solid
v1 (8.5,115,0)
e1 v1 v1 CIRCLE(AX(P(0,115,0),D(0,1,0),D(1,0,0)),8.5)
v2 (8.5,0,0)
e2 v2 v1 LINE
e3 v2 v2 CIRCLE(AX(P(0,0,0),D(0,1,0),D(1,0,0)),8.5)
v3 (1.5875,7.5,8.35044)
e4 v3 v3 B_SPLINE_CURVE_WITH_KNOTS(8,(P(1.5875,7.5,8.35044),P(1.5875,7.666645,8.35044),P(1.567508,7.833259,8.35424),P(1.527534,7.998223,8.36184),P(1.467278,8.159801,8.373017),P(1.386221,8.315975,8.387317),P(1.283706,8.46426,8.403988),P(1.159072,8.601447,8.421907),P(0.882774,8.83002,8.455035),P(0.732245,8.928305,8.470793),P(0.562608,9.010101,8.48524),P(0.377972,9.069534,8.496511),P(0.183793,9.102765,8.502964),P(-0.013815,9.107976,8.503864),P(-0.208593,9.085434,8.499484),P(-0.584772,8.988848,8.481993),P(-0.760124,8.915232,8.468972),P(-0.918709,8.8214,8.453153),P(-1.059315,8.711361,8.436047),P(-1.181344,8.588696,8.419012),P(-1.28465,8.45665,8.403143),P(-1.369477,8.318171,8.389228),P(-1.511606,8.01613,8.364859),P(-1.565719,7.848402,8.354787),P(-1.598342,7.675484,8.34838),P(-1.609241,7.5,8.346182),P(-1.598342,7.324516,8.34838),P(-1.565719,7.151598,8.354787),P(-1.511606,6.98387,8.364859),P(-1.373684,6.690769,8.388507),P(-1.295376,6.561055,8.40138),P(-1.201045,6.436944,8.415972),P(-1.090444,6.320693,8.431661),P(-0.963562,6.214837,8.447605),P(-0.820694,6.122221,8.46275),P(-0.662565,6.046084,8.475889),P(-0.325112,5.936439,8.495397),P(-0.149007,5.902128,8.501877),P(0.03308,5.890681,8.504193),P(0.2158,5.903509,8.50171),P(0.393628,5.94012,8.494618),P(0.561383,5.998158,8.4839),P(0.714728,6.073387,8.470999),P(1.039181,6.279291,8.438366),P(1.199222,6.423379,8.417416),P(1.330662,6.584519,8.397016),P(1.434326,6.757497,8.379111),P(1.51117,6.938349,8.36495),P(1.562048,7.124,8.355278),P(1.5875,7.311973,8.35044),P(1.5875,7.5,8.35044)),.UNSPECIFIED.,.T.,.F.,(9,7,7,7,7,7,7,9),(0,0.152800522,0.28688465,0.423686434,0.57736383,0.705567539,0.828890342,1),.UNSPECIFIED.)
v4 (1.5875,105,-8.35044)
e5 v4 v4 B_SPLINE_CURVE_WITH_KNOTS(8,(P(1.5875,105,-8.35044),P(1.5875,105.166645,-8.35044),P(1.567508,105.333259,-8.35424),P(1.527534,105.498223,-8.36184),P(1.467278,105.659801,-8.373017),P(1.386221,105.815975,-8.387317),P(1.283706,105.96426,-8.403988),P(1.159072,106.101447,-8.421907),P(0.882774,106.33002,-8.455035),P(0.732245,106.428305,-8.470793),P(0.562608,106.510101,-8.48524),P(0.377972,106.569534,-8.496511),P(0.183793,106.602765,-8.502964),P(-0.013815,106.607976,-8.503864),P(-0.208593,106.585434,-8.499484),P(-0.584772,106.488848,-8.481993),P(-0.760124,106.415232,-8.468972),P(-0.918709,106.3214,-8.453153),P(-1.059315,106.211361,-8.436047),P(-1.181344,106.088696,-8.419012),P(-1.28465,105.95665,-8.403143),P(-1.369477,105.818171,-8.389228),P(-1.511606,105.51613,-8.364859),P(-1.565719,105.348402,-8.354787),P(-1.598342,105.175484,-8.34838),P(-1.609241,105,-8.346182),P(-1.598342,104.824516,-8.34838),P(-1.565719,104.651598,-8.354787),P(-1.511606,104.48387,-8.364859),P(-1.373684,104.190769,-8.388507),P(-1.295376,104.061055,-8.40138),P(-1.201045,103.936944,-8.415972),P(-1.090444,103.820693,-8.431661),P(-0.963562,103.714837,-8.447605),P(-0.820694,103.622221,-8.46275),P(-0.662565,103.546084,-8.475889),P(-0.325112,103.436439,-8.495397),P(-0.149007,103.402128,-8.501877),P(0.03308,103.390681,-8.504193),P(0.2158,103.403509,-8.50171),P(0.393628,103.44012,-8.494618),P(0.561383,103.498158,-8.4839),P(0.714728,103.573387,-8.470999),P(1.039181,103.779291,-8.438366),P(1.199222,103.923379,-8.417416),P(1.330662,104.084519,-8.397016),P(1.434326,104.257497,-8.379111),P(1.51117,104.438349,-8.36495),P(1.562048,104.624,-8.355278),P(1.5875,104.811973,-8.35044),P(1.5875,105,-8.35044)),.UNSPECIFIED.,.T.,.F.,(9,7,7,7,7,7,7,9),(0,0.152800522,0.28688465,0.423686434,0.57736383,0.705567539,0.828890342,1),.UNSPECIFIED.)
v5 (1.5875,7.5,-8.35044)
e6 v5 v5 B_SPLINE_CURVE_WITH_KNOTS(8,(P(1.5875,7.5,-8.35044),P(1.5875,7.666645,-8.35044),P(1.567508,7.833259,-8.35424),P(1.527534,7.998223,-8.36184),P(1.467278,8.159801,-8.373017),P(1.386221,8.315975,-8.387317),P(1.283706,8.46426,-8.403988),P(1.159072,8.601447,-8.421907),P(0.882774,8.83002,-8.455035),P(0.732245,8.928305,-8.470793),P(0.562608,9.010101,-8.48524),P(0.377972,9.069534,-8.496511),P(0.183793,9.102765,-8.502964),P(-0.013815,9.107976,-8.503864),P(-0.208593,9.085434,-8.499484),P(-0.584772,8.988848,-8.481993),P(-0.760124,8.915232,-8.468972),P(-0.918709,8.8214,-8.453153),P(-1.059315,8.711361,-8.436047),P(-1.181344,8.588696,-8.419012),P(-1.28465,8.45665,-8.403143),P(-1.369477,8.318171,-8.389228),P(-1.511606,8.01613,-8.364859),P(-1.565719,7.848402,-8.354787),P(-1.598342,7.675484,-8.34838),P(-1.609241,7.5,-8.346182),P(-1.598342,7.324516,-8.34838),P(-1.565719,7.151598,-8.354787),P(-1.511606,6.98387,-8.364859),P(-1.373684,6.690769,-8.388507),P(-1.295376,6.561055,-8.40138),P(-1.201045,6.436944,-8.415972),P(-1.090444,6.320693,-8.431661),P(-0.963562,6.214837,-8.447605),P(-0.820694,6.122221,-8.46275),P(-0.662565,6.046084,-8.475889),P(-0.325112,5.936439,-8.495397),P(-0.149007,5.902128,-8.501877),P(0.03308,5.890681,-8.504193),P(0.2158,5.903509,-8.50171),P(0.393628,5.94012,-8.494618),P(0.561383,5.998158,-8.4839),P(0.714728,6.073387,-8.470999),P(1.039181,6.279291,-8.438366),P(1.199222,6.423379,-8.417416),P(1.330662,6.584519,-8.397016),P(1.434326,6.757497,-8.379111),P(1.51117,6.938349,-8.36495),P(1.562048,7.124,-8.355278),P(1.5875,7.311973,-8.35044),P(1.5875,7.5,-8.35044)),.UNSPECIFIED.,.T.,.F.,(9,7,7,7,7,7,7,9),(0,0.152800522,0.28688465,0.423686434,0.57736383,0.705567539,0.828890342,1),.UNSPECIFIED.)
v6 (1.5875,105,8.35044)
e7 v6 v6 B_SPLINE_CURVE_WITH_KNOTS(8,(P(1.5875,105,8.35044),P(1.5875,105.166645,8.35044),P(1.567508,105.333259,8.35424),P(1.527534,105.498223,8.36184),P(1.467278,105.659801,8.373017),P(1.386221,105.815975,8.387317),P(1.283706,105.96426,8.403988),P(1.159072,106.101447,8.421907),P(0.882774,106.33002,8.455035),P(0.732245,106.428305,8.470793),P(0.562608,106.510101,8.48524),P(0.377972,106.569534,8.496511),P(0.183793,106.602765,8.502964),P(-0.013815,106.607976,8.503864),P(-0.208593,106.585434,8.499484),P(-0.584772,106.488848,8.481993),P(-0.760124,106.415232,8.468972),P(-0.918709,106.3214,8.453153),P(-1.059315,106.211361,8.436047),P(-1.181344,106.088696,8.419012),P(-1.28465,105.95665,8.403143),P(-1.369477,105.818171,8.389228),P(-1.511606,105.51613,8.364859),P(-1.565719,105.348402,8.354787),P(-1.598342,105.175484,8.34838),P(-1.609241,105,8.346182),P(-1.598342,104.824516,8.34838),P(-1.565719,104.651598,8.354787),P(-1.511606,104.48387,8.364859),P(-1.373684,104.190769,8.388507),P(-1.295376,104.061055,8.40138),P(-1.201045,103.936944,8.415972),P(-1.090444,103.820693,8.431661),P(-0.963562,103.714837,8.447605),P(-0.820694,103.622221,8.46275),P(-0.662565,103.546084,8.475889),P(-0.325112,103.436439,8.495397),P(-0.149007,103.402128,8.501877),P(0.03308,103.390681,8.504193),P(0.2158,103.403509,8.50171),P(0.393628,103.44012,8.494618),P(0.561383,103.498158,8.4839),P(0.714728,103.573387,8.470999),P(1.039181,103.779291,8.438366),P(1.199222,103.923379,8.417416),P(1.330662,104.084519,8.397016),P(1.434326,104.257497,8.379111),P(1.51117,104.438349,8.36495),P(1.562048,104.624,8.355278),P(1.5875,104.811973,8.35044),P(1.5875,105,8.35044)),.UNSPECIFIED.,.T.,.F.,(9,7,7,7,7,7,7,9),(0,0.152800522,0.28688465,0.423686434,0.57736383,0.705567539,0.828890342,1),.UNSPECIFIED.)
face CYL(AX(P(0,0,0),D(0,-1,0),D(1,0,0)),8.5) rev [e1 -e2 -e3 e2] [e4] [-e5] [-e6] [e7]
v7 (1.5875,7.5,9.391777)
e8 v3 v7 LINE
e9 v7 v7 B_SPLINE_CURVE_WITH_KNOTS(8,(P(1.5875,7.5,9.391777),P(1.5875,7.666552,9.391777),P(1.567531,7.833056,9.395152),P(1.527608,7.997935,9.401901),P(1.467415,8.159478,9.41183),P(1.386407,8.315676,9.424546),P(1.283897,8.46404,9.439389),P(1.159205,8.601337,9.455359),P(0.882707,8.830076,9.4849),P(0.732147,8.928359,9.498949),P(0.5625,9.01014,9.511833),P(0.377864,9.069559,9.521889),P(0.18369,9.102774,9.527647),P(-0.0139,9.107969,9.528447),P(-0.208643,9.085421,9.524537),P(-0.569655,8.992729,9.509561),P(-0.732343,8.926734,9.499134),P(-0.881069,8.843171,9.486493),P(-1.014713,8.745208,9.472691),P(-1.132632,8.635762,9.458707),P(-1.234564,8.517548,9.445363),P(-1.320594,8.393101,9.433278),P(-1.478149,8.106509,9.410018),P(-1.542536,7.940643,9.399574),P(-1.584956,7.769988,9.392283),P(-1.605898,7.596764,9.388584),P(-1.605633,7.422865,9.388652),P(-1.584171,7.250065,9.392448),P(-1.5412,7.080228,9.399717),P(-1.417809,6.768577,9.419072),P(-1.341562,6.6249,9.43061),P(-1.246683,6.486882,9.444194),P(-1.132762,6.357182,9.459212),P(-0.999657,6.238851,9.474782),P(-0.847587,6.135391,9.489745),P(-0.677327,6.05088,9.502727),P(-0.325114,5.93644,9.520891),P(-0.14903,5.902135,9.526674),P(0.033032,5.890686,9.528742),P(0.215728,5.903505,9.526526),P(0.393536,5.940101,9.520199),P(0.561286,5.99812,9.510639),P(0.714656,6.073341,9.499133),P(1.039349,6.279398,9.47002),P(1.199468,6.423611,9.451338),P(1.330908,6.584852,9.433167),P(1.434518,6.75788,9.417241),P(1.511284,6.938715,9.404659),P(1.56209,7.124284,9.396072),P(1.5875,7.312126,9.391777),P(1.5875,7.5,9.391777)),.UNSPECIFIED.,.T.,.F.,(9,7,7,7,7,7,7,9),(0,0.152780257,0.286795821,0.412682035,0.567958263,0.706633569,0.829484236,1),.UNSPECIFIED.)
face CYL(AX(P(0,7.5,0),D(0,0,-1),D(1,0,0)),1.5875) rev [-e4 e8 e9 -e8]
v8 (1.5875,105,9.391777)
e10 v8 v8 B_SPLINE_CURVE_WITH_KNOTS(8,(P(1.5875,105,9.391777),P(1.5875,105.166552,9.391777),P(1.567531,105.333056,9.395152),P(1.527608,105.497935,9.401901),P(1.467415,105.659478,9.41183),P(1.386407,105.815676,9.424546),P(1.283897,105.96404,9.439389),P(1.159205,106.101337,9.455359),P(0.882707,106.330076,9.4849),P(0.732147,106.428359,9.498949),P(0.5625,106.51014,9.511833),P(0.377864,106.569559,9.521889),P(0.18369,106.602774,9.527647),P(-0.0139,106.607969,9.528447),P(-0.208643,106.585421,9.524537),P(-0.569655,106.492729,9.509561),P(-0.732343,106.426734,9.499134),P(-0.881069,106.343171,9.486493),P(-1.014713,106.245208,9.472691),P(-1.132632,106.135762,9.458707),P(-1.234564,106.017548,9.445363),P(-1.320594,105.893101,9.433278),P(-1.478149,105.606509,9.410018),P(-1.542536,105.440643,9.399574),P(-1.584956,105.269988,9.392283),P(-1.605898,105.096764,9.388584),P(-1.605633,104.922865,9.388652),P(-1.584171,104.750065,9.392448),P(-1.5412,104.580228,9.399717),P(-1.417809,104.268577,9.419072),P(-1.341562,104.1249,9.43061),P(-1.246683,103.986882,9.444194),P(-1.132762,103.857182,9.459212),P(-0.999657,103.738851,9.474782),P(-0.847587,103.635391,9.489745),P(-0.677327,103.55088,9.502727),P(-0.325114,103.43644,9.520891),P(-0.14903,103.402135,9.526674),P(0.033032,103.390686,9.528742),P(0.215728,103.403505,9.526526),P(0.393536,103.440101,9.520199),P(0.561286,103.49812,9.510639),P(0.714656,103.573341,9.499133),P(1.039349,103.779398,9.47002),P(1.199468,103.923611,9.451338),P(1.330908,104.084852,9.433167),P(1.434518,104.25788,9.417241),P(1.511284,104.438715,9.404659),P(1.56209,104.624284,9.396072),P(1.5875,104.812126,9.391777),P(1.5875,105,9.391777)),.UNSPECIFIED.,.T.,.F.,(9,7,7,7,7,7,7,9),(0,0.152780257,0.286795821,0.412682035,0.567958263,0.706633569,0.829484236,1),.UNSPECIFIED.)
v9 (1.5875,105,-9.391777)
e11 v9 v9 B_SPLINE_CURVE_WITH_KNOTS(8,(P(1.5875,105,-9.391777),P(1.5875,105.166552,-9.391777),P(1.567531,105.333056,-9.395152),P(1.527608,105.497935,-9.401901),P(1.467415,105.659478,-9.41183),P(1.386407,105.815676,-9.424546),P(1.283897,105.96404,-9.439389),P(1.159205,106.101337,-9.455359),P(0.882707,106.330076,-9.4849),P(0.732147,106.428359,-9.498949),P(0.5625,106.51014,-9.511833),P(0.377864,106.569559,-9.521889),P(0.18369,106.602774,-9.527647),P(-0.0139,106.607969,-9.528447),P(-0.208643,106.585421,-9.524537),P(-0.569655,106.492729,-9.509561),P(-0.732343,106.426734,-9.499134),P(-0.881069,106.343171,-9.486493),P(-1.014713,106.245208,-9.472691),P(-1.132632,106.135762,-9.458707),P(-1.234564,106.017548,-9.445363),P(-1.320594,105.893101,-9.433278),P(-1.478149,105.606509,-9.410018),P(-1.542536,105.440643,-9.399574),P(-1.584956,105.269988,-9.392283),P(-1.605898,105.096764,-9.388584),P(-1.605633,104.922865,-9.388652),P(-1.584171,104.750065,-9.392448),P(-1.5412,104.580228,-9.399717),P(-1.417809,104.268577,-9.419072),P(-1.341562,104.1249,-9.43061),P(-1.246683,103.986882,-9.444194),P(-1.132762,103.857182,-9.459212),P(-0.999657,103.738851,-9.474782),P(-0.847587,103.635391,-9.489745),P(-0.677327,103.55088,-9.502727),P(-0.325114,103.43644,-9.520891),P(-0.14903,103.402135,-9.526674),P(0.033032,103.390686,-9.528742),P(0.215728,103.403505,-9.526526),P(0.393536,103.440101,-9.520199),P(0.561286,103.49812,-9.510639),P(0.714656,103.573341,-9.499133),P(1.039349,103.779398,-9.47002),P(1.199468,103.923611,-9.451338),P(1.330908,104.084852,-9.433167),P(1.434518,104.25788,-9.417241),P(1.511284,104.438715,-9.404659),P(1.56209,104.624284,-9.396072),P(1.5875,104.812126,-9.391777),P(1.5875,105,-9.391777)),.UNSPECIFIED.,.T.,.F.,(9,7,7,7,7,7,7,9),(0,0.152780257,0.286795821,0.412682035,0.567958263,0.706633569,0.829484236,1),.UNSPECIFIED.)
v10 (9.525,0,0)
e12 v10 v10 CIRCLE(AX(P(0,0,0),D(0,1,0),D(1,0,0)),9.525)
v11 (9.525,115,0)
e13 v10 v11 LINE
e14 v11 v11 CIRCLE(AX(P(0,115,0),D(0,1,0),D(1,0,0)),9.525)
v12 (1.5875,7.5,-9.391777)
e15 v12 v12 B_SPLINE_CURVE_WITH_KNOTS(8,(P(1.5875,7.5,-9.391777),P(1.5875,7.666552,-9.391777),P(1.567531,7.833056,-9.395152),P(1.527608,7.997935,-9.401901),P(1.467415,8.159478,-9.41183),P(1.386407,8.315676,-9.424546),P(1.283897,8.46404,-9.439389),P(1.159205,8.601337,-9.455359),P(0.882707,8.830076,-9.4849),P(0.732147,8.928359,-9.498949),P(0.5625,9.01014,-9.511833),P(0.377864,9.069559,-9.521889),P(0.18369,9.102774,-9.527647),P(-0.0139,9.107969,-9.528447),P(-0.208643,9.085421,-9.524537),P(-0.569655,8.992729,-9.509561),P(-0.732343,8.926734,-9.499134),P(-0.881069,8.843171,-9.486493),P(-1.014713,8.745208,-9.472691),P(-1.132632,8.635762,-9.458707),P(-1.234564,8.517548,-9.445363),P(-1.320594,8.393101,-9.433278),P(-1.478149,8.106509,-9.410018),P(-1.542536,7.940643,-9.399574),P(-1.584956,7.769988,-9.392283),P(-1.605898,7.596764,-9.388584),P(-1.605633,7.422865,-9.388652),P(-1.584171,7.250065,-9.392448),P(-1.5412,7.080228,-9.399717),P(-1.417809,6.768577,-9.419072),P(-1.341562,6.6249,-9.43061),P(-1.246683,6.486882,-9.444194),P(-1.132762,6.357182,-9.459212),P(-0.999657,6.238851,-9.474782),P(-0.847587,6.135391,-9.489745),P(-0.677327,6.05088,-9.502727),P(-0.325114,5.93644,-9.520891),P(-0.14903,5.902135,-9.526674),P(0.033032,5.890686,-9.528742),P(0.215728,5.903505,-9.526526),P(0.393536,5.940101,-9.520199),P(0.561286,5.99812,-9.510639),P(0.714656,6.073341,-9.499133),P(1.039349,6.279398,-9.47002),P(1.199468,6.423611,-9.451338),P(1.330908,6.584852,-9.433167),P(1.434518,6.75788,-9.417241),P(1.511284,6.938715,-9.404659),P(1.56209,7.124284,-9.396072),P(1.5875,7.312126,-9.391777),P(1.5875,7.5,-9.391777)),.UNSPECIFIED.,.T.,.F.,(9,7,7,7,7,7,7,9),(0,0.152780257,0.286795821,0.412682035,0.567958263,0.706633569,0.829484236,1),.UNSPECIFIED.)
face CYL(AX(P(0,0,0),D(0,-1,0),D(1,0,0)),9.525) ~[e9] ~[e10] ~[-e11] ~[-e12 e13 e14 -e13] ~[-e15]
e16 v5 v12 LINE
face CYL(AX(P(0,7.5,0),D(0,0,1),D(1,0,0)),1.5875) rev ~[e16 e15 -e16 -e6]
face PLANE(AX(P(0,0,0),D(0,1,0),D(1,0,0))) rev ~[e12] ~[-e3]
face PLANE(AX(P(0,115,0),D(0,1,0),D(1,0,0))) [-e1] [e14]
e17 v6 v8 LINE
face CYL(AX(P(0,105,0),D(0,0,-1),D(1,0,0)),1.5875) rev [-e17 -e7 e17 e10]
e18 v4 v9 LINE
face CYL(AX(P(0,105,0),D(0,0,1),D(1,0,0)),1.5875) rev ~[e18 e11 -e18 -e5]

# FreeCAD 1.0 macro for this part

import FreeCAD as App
import Part
import Sketcher
Q = App.Units.Quantity

doc = App.newDocument("Part")
body = doc.addObject("PartDesign::Body", "Body")

sketch1 = body.newObject("Sketcher::SketchObject", "Sketch")
sketch1.AttachmentSupport = (doc.getObject("XZ_Plane"), [""])
sketch1.MapMode = "FlatFace"
sketch1.addGeometry([
    Part.Circle(App.Vector(0, 0, 0), App.Vector(0, 0, 1), 10),
    Part.Circle(App.Vector(0, 0, 0), App.Vector(0, 0, 1), 8),
], False)
sketch1.addConstraint([
    Sketcher.Constraint("Coincident", 0, 3, -1, 1),
    Sketcher.Constraint("Coincident", 1, 3, -1, 1),
    Sketcher.Constraint("Diameter", 1, Q("17 mm")),
    Sketcher.Constraint("Diameter", 0, Q("19.05 mm")),
])
pad1 = body.newObject("PartDesign::Pad", "Pad")
pad1.Profile = sketch1
pad1.Length = 115
pad1.Reversed = True

sketch2 = body.newObject("Sketcher::SketchObject", "Sketch001")
sketch2.AttachmentSupport = (doc.getObject("XY_Plane"), [""])
sketch2.MapMode = "FlatFace"
sketch2.addGeometry([
    Part.Circle(App.Vector(0, 105, 0), App.Vector(0, 0, 1), 1.6),
    Part.Circle(App.Vector(0, 7.5, 0), App.Vector(0, 0, 1), 1.6),
], False)
sketch2.addConstraint([
    Sketcher.Constraint("Equal", 0, 1),
    Sketcher.Constraint("PointOnObject", 0, 3, -2),
    Sketcher.Constraint("PointOnObject", 1, 3, -2),
    Sketcher.Constraint("Diameter", 0, Q("3.175 mm")),
    Sketcher.Constraint("DistanceY", -1, 1, 0, 3, Q("105 mm")),
    Sketcher.Constraint("DistanceY", -1, 1, 1, 3, Q("7.5 mm")),
])
pocket1 = body.newObject("PartDesign::Pocket", "Pocket")
pocket1.Profile = sketch2
pocket1.Type = "ThroughAll"
pocket1.Midplane = True

doc.recompute()
